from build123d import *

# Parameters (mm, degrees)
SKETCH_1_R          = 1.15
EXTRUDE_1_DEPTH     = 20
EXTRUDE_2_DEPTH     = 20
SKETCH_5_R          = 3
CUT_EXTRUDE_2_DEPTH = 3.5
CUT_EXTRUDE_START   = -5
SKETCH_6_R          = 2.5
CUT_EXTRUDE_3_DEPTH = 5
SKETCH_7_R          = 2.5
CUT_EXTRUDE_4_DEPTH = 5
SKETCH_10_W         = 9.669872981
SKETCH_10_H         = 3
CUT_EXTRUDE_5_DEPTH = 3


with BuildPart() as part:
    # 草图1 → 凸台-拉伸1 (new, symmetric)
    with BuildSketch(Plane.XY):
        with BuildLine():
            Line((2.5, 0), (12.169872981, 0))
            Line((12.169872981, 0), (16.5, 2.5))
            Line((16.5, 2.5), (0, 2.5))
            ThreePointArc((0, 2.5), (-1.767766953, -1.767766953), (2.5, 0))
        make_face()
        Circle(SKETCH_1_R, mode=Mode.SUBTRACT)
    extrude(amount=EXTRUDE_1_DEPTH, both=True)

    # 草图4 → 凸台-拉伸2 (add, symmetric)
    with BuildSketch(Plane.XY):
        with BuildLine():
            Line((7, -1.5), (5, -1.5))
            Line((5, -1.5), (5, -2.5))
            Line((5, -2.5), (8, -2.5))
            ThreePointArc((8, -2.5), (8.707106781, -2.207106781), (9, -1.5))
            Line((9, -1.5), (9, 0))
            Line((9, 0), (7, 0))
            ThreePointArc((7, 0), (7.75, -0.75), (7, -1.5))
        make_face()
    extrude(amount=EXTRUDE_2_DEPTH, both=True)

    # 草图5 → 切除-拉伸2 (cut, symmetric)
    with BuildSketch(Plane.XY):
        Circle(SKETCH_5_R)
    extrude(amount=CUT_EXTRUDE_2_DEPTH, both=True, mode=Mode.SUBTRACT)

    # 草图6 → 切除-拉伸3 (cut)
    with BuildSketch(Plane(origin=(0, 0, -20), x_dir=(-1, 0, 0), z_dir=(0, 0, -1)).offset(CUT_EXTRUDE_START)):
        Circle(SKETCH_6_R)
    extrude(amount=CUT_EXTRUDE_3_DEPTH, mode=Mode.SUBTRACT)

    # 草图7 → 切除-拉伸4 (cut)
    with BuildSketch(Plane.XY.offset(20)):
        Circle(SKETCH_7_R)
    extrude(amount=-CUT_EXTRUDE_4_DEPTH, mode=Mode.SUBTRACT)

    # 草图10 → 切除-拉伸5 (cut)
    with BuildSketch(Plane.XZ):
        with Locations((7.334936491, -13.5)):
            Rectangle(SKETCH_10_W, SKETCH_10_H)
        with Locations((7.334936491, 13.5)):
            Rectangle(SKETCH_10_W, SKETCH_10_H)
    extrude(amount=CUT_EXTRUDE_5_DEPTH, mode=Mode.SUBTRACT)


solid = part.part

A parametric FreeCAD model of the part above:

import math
import FreeCAD as App
import Part
import Sketcher

V = App.Vector
Q = App.Units.Quantity


def add_polygon(sketch, points):
    """Adds a closed chain of lines whose ends are joined by coincident constraints."""
    first, n = sketch.GeometryCount, len(points)
    for a, b in zip(points, points[1:] + points[:1]):
        sketch.addGeometry(Part.LineSegment(App.Vector(*a, 0), App.Vector(*b, 0)), False)
    for i in range(n):
        sketch.addConstraint(Sketcher.Constraint("Coincident", first + i, 2, first + (i + 1) % n, 1))

doc = App.newDocument("Part")
body = doc.addObject("PartDesign::Body", "Body")

sketch1 = doc.addObject("Sketcher::SketchObject", "Sketch")
body.addObject(sketch1)
sketch1.AttachmentSupport = (doc.XY_Plane, [""])
sketch1.MapMode = "FlatFace"
sketch1.addGeometry(Part.LineSegment(V(2.5, 0, 0), V(12.2, 0, 0)), False)
sketch1.addGeometry(Part.LineSegment(V(12.2, 0, 0), V(16.5, 2.5, 0)), False)
sketch1.addGeometry(Part.LineSegment(V(16.5, 2.5, 0), V(0, 2.5, 0)), False)
sketch1.addGeometry(Part.ArcOfCircle(Part.Circle(V(0, 0, 0), V(0, 0, 1), 2.5), math.radians(90), math.radians(360)), False)
sketch1.addGeometry(Part.Circle(V(0, 0, 0), V(0, 0, 1), 1.1), False)
sketch1.addConstraint(Sketcher.Constraint("Coincident", 0, 2, 1, 1))
sketch1.addConstraint(Sketcher.Constraint("Coincident", 1, 2, 2, 1))
sketch1.addConstraint(Sketcher.Constraint("Tangent", 2, 2, 3, 1))
sketch1.addConstraint(Sketcher.Constraint("Coincident", 3, 2, 0, 1))
sketch1.addConstraint(Sketcher.Constraint("Horizontal", 0))
sketch1.addConstraint(Sketcher.Constraint("Horizontal", 2))
sketch1.addConstraint(Sketcher.Constraint("Coincident", 3, 3, -1, 1))
sketch1.addConstraint(Sketcher.Constraint("Coincident", 4, 3, -1, 1))
sketch1.addConstraint(Sketcher.Constraint("PointOnObject", 0, 2, -1))
sketch1.addConstraint(Sketcher.Constraint("Diameter", 4, Q("2.3 mm")))
sketch1.addConstraint(Sketcher.Constraint("Radius", 3, Q("2.5 mm")))
sketch1.addConstraint(Sketcher.Constraint("Angle", 1, Q("30 deg")))
sketch1.addConstraint(Sketcher.Constraint("DistanceX", 2, 2, 2, 1, Q("16.5 mm")))
pad1 = doc.addObject("PartDesign::Pad", "Pad")
body.addObject(pad1)
pad1.Profile = sketch1
pad1.Length = 40
pad1.Midplane = True

sketch2 = doc.addObject("Sketcher::SketchObject", "Sketch001")
body.addObject(sketch2)
sketch2.AttachmentSupport = (doc.XY_Plane, [""])
sketch2.MapMode = "FlatFace"
sketch2.addGeometry(Part.LineSegment(V(7, -1.5, 0), V(5, -1.5, 0)), False)
sketch2.addGeometry(Part.LineSegment(V(5, -1.5, 0), V(5, -2.5, 0)), False)
sketch2.addGeometry(Part.LineSegment(V(5, -2.5, 0), V(8, -2.5, 0)), False)
sketch2.addGeometry(Part.ArcOfCircle(Part.Circle(V(8, -1.5, 0), V(0, 0, 1), 1), math.radians(-90), math.radians(0)), False)
sketch2.addGeometry(Part.LineSegment(V(9, -1.5, 0), V(9, 0, 0)), False)
sketch2.addGeometry(Part.LineSegment(V(9, 0, 0), V(7, 0, 0)), False)
sketch2.addGeometry(Part.ArcOfCircle(Part.Circle(V(7, -0.8, 0), V(0, 0, 1), 0.8), math.radians(-90), math.radians(90)), False)
sketch2.addConstraint(Sketcher.Constraint("Coincident", 0, 2, 1, 1))
sketch2.addConstraint(Sketcher.Constraint("Coincident", 1, 2, 2, 1))
sketch2.addConstraint(Sketcher.Constraint("Tangent", 2, 2, 3, 1))
sketch2.addConstraint(Sketcher.Constraint("Tangent", 3, 2, 4, 1))
sketch2.addConstraint(Sketcher.Constraint("Coincident", 4, 2, 5, 1))
sketch2.addConstraint(Sketcher.Constraint("Tangent", 5, 2, 6, 2))
sketch2.addConstraint(Sketcher.Constraint("Tangent", 6, 1, 0, 1))
sketch2.addConstraint(Sketcher.Constraint("Horizontal", 0))
sketch2.addConstraint(Sketcher.Constraint("Vertical", 1))
sketch2.addConstraint(Sketcher.Constraint("Horizontal", 2))
sketch2.addConstraint(Sketcher.Constraint("Vertical", 4))
sketch2.addConstraint(Sketcher.Constraint("Horizontal", 5))
sketch2.addConstraint(Sketcher.Constraint("PointOnObject", 4, 2, -1))
sketch2.addConstraint(Sketcher.Constraint("Horizontal", 3, 3, 0, 2))
sketch2.addConstraint(Sketcher.Constraint("Equal", 0, 5))
sketch2.addConstraint(Sketcher.Constraint("Radius", 3, Q("1 mm")))
sketch2.addConstraint(Sketcher.Constraint("DistanceX", 0, 2, 0, 1, Q("2 mm")))
sketch2.addConstraint(Sketcher.Constraint("Radius", 6, Q("0.75 mm")))
sketch2.addConstraint(Sketcher.Constraint("DistanceX", -1, 1, 3, 3, Q("8 mm")))
pad2 = doc.addObject("PartDesign::Pad", "Pad001")
body.addObject(pad2)
pad2.Profile = sketch2
pad2.Length = 40
pad2.Midplane = True

sketch3 = doc.addObject("Sketcher::SketchObject", "Sketch002")
body.addObject(sketch3)
sketch3.AttachmentSupport = (doc.XY_Plane, [""])
sketch3.MapMode = "FlatFace"
sketch3.addGeometry(Part.Circle(V(0, 0, 0), V(0, 0, 1), 3), False)
sketch3.addConstraint(Sketcher.Constraint("Coincident", 0, 3, -1, 1))
sketch3.addConstraint(Sketcher.Constraint("Diameter", 0, Q("6 mm")))
pocket1 = doc.addObject("PartDesign::Pocket", "Pocket")
body.addObject(pocket1)
pocket1.Profile = sketch3
pocket1.Length = 7
pocket1.Midplane = True

sketch4 = doc.addObject("Sketcher::SketchObject", "Sketch003")
body.addObject(sketch4)
sketch4.AttachmentSupport = (doc.XY_Plane, [""])
sketch4.MapMode = "FlatFace"
sketch4.AttachmentOffset = App.Placement(V(0, 0, -15), App.Rotation())
sketch4.addGeometry(Part.Circle(V(0, 0, 0), V(0, 0, 1), 2.5), False)
sketch4.addConstraint(Sketcher.Constraint("Coincident", 0, 3, -1, 1))
sketch4.addConstraint(Sketcher.Constraint("Diameter", 0, Q("5 mm")))
pocket2 = doc.addObject("PartDesign::Pocket", "Pocket001")
body.addObject(pocket2)
pocket2.Profile = sketch4
pocket2.Length = 5

sketch5 = doc.addObject("Sketcher::SketchObject", "Sketch004")
body.addObject(sketch5)
sketch5.AttachmentSupport = (doc.XY_Plane, [""])
sketch5.MapMode = "FlatFace"
sketch5.AttachmentOffset = App.Placement(V(0, 0, 20), App.Rotation())
sketch5.addGeometry(Part.Circle(V(0, 0, 0), V(0, 0, 1), 2.5), False)
sketch5.addConstraint(Sketcher.Constraint("Coincident", 0, 3, -1, 1))
sketch5.addConstraint(Sketcher.Constraint("Diameter", 0, Q("5 mm")))
pocket3 = doc.addObject("PartDesign::Pocket", "Pocket002")
body.addObject(pocket3)
pocket3.Profile = sketch5
pocket3.Length = 5

sketch6 = doc.addObject("Sketcher::SketchObject", "Sketch005")
body.addObject(sketch6)
sketch6.AttachmentSupport = (doc.XZ_Plane, [""])
sketch6.MapMode = "FlatFace"
add_polygon(sketch6, [(2.5, -12), (2.5, -15), (12.2, -15), (12.2, -12)])
add_polygon(sketch6, [(2.5, 15), (2.5, 12), (12.2, 12), (12.2, 15)])
sketch6.addConstraint(Sketcher.Constraint("Vertical", 0))
sketch6.addConstraint(Sketcher.Constraint("Horizontal", 1))
sketch6.addConstraint(Sketcher.Constraint("Vertical", 2))
sketch6.addConstraint(Sketcher.Constraint("Horizontal", 3))
sketch6.addConstraint(Sketcher.Constraint("Vertical", 4))
sketch6.addConstraint(Sketcher.Constraint("Horizontal", 5))
sketch6.addConstraint(Sketcher.Constraint("Vertical", 6))
sketch6.addConstraint(Sketcher.Constraint("Horizontal", 7))
sketch6.addConstraint(Sketcher.Constraint("Symmetric", 3, 2, 4, 2, -1))
sketch6.addConstraint(Sketcher.Constraint("Symmetric", 1, 2, 6, 2, -1))
sketch6.addConstraint(Sketcher.Constraint("DistanceY", 0, 2, 0, 1, Q("3 mm")))
sketch6.addConstraint(Sketcher.Constraint("DistanceY", 0, 2, -1, 1, Q("15 mm")))
sketch6.addConstraint(Sketcher.Constraint("DistanceX", -1, 1, 0, 2, Q("2.5 mm")))
sketch6.addConstraint(Sketcher.Constraint("DistanceX", 1, 1, 1, 2, Q("9.669873 mm")))
pocket4 = doc.addObject("PartDesign::Pocket", "Pocket003")
body.addObject(pocket4)
pocket4.Profile = sketch6
pocket4.Length = 3
pocket4.Reversed = True

doc.recompute()
